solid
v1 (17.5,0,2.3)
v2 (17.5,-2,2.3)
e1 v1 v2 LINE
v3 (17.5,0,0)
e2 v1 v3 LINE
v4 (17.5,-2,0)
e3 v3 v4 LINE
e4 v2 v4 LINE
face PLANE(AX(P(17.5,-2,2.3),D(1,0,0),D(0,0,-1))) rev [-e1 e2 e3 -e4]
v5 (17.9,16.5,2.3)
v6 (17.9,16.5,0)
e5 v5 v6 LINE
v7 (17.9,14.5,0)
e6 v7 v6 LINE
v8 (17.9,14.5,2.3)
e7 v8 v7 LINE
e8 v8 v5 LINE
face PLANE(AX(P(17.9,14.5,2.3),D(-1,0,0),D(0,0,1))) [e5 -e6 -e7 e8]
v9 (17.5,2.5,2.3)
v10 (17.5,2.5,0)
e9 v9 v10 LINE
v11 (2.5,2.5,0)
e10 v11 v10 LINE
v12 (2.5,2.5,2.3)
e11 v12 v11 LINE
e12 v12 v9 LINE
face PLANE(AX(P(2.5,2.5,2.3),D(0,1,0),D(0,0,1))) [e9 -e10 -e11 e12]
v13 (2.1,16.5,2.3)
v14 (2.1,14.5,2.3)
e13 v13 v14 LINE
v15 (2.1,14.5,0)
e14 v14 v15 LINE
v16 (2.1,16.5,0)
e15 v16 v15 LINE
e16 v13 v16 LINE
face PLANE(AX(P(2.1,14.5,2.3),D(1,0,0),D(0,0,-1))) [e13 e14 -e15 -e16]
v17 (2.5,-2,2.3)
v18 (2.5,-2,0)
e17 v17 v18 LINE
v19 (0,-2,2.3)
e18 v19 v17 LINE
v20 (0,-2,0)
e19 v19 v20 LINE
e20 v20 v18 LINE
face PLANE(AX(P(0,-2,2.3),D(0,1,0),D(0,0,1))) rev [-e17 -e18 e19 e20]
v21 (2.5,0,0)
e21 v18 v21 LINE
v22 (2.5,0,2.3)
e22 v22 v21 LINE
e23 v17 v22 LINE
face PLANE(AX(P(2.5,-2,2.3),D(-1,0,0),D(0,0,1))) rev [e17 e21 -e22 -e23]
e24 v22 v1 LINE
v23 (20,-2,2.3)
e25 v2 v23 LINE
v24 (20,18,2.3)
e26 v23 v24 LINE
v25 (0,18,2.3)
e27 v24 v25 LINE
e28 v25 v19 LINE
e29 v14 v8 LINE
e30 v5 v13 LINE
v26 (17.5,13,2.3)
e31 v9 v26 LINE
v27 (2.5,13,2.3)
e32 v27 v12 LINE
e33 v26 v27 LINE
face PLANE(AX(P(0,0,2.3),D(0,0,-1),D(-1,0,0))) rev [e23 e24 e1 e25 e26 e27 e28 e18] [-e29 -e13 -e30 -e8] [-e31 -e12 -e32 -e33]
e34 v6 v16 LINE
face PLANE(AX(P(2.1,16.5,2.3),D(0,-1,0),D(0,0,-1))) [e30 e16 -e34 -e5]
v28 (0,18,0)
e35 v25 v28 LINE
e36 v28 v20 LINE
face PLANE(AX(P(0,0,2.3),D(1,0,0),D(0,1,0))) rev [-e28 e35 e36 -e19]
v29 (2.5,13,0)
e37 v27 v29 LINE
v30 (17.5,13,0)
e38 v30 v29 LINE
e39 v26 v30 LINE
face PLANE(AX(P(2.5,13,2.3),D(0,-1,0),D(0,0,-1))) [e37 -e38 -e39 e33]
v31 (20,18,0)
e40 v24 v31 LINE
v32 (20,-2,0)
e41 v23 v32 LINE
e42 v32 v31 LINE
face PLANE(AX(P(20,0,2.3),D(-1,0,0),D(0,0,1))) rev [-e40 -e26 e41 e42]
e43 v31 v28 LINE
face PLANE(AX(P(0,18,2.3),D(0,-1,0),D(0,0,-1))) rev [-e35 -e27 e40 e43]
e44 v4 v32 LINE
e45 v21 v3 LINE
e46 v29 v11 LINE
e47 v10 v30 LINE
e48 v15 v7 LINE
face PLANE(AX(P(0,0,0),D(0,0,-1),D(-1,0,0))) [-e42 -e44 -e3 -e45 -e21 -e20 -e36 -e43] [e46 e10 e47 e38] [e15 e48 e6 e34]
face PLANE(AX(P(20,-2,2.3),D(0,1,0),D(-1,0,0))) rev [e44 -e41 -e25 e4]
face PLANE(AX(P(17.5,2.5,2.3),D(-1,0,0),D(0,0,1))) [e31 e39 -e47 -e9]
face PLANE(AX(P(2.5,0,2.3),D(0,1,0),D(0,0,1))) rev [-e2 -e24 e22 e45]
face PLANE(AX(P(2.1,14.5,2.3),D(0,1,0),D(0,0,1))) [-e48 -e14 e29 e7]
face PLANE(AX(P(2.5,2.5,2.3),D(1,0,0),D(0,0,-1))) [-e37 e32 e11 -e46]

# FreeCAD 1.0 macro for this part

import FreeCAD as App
import Part
import Sketcher
from FreeCAD import Vector

doc = App.newDocument("Part")
params = doc.addObject("Spreadsheet::Sheet", "Params")
for row, (alias, value) in enumerate([
    ("sketch1_width", "15 mm"),
    ("sketch1_width2", "20 mm"),
    ("sketch1_height", "2 mm"),
    ("sketch1_width3", "15.8 mm"),
    ("sketch1_height2", "10.5 mm"),
    ("pad1_length", "2.3 mm"),
], start=1):
    params.set(f"A{row}", alias)
    params.set(f"B{row}", "=" + value)
    params.setAlias(f"B{row}", alias)

body = doc.addObject("PartDesign::Body", "Body")

# Sketch on XY plane
sketch1 = body.newObject("Sketcher::SketchObject", "Sketch")
sketch1.AttachmentSupport = (doc.getObject("XY_Plane"), [""])
sketch1.MapMode = "FlatFace"
sketch1.addGeometry([
    Part.LineSegment(Vector(0, -2, 0), Vector(2.5, -2, 0)),  # 0
    Part.LineSegment(Vector(2.5, -2, 0), Vector(2.5, 0, 0)),  # 1
    Part.LineSegment(Vector(2.5, 0, 0), Vector(17.5, 0, 0)),  # 2
    Part.LineSegment(Vector(17.5, 0, 0), Vector(17.5, -2, 0)),  # 3
    Part.LineSegment(Vector(17.5, -2, 0), Vector(20, -2, 0)),  # 4
    Part.LineSegment(Vector(20, -2, 0), Vector(20, 18, 0)),  # 5
    Part.LineSegment(Vector(20, 18, 0), Vector(0, 18, 0)),  # 6
    Part.LineSegment(Vector(0, 18, 0), Vector(0, -2, 0)),  # 7
    Part.LineSegment(Vector(17.5, 2.5, 0), Vector(2.5, 2.5, 0)),  # 8
    Part.LineSegment(Vector(2.5, 2.5, 0), Vector(2.5, 13, 0)),  # 9
    Part.LineSegment(Vector(2.5, 13, 0), Vector(17.5, 13, 0)),  # 10
    Part.LineSegment(Vector(17.5, 13, 0), Vector(17.5, 2.5, 0)),  # 11
    Part.LineSegment(Vector(17.9, 14.5, 0), Vector(2.1, 14.5, 0)),  # 12
    Part.LineSegment(Vector(2.1, 14.5, 0), Vector(2.1, 16.5, 0)),  # 13
    Part.LineSegment(Vector(2.1, 16.5, 0), Vector(17.9, 16.5, 0)),  # 14
    Part.LineSegment(Vector(17.9, 16.5, 0), Vector(17.9, 14.5, 0)),  # 15
], False)
sketch1.addConstraint([
    Sketcher.Constraint("Coincident", 0, 2, 1, 1),
    Sketcher.Constraint("Coincident", 1, 2, 2, 1),
    Sketcher.Constraint("Coincident", 2, 2, 3, 1),
    Sketcher.Constraint("Coincident", 3, 2, 4, 1),
    Sketcher.Constraint("Coincident", 4, 2, 5, 1),
    Sketcher.Constraint("Coincident", 5, 2, 6, 1),
    Sketcher.Constraint("Coincident", 6, 2, 7, 1),
    Sketcher.Constraint("Coincident", 7, 2, 0, 1),
    Sketcher.Constraint("Coincident", 8, 2, 9, 1),
    Sketcher.Constraint("Coincident", 9, 2, 10, 1),
    Sketcher.Constraint("Coincident", 10, 2, 11, 1),
    Sketcher.Constraint("Coincident", 11, 2, 8, 1),
    Sketcher.Constraint("Coincident", 12, 2, 13, 1),
    Sketcher.Constraint("Coincident", 13, 2, 14, 1),
    Sketcher.Constraint("Coincident", 14, 2, 15, 1),
    Sketcher.Constraint("Coincident", 15, 2, 12, 1),
    Sketcher.Constraint("Horizontal", 0),
    Sketcher.Constraint("Vertical", 1),
    Sketcher.Constraint("Horizontal", 2),
    Sketcher.Constraint("Vertical", 3),
    Sketcher.Constraint("Horizontal", 4),
    Sketcher.Constraint("Vertical", 5),
    Sketcher.Constraint("Horizontal", 6),
    Sketcher.Constraint("Vertical", 7),
    Sketcher.Constraint("Horizontal", 8),
    Sketcher.Constraint("Vertical", 9),
    Sketcher.Constraint("Horizontal", 10),
    Sketcher.Constraint("Vertical", 11),
    Sketcher.Constraint("Horizontal", 12),
    Sketcher.Constraint("Vertical", 13),
    Sketcher.Constraint("Horizontal", 14),
    Sketcher.Constraint("Vertical", 15),
    Sketcher.Constraint("PointOnObject", 1, 2, -1),
    Sketcher.Constraint("PointOnObject", 6, 2, -2),
    Sketcher.Constraint("Horizontal", 0, 2, 3, 2),
    Sketcher.Constraint("Vertical", 1, 2, 8, 2),
    Sketcher.Constraint("Vertical", 3, 2, 10, 2),
    Sketcher.Constraint("Equal", 0, 4),
    Sketcher.Constraint("Equal", 6, 5),
    Sketcher.Constraint("Equal", 3, 13),
    Sketcher.Constraint("DistanceX", 2, 1, 2, 2, 15.0),
    Sketcher.Constraint("DistanceX", 6, 2, 6, 1, 20.0),
    Sketcher.Constraint("DistanceY", 1, 1, 1, 2, 2.0),
    Sketcher.Constraint("DistanceX", 12, 2, 12, 1, 15.8),
    Sketcher.Constraint("DistanceY", 9, 1, 9, 2, 10.5),
    Sketcher.Constraint("DistanceY", -1, 1, 9, 2, 13.0),
    Sketcher.Constraint("DistanceY", 8, 2, 12, 2, 12.0),
    Sketcher.Constraint("DistanceX", -1, 1, 12, 2, 2.1),
])
sketch1.setExpression("Constraints[40]", "Params.sketch1_width")
sketch1.setExpression("Constraints[41]", "Params.sketch1_width2")
sketch1.setExpression("Constraints[42]", "Params.sketch1_height")
sketch1.setExpression("Constraints[43]", "Params.sketch1_width3")
sketch1.setExpression("Constraints[44]", "Params.sketch1_height2")
pad1 = body.newObject("PartDesign::Pad", "Pad")
pad1.Profile = sketch1
pad1.setExpression("Length", "Params.pad1_length")

doc.recompute()
